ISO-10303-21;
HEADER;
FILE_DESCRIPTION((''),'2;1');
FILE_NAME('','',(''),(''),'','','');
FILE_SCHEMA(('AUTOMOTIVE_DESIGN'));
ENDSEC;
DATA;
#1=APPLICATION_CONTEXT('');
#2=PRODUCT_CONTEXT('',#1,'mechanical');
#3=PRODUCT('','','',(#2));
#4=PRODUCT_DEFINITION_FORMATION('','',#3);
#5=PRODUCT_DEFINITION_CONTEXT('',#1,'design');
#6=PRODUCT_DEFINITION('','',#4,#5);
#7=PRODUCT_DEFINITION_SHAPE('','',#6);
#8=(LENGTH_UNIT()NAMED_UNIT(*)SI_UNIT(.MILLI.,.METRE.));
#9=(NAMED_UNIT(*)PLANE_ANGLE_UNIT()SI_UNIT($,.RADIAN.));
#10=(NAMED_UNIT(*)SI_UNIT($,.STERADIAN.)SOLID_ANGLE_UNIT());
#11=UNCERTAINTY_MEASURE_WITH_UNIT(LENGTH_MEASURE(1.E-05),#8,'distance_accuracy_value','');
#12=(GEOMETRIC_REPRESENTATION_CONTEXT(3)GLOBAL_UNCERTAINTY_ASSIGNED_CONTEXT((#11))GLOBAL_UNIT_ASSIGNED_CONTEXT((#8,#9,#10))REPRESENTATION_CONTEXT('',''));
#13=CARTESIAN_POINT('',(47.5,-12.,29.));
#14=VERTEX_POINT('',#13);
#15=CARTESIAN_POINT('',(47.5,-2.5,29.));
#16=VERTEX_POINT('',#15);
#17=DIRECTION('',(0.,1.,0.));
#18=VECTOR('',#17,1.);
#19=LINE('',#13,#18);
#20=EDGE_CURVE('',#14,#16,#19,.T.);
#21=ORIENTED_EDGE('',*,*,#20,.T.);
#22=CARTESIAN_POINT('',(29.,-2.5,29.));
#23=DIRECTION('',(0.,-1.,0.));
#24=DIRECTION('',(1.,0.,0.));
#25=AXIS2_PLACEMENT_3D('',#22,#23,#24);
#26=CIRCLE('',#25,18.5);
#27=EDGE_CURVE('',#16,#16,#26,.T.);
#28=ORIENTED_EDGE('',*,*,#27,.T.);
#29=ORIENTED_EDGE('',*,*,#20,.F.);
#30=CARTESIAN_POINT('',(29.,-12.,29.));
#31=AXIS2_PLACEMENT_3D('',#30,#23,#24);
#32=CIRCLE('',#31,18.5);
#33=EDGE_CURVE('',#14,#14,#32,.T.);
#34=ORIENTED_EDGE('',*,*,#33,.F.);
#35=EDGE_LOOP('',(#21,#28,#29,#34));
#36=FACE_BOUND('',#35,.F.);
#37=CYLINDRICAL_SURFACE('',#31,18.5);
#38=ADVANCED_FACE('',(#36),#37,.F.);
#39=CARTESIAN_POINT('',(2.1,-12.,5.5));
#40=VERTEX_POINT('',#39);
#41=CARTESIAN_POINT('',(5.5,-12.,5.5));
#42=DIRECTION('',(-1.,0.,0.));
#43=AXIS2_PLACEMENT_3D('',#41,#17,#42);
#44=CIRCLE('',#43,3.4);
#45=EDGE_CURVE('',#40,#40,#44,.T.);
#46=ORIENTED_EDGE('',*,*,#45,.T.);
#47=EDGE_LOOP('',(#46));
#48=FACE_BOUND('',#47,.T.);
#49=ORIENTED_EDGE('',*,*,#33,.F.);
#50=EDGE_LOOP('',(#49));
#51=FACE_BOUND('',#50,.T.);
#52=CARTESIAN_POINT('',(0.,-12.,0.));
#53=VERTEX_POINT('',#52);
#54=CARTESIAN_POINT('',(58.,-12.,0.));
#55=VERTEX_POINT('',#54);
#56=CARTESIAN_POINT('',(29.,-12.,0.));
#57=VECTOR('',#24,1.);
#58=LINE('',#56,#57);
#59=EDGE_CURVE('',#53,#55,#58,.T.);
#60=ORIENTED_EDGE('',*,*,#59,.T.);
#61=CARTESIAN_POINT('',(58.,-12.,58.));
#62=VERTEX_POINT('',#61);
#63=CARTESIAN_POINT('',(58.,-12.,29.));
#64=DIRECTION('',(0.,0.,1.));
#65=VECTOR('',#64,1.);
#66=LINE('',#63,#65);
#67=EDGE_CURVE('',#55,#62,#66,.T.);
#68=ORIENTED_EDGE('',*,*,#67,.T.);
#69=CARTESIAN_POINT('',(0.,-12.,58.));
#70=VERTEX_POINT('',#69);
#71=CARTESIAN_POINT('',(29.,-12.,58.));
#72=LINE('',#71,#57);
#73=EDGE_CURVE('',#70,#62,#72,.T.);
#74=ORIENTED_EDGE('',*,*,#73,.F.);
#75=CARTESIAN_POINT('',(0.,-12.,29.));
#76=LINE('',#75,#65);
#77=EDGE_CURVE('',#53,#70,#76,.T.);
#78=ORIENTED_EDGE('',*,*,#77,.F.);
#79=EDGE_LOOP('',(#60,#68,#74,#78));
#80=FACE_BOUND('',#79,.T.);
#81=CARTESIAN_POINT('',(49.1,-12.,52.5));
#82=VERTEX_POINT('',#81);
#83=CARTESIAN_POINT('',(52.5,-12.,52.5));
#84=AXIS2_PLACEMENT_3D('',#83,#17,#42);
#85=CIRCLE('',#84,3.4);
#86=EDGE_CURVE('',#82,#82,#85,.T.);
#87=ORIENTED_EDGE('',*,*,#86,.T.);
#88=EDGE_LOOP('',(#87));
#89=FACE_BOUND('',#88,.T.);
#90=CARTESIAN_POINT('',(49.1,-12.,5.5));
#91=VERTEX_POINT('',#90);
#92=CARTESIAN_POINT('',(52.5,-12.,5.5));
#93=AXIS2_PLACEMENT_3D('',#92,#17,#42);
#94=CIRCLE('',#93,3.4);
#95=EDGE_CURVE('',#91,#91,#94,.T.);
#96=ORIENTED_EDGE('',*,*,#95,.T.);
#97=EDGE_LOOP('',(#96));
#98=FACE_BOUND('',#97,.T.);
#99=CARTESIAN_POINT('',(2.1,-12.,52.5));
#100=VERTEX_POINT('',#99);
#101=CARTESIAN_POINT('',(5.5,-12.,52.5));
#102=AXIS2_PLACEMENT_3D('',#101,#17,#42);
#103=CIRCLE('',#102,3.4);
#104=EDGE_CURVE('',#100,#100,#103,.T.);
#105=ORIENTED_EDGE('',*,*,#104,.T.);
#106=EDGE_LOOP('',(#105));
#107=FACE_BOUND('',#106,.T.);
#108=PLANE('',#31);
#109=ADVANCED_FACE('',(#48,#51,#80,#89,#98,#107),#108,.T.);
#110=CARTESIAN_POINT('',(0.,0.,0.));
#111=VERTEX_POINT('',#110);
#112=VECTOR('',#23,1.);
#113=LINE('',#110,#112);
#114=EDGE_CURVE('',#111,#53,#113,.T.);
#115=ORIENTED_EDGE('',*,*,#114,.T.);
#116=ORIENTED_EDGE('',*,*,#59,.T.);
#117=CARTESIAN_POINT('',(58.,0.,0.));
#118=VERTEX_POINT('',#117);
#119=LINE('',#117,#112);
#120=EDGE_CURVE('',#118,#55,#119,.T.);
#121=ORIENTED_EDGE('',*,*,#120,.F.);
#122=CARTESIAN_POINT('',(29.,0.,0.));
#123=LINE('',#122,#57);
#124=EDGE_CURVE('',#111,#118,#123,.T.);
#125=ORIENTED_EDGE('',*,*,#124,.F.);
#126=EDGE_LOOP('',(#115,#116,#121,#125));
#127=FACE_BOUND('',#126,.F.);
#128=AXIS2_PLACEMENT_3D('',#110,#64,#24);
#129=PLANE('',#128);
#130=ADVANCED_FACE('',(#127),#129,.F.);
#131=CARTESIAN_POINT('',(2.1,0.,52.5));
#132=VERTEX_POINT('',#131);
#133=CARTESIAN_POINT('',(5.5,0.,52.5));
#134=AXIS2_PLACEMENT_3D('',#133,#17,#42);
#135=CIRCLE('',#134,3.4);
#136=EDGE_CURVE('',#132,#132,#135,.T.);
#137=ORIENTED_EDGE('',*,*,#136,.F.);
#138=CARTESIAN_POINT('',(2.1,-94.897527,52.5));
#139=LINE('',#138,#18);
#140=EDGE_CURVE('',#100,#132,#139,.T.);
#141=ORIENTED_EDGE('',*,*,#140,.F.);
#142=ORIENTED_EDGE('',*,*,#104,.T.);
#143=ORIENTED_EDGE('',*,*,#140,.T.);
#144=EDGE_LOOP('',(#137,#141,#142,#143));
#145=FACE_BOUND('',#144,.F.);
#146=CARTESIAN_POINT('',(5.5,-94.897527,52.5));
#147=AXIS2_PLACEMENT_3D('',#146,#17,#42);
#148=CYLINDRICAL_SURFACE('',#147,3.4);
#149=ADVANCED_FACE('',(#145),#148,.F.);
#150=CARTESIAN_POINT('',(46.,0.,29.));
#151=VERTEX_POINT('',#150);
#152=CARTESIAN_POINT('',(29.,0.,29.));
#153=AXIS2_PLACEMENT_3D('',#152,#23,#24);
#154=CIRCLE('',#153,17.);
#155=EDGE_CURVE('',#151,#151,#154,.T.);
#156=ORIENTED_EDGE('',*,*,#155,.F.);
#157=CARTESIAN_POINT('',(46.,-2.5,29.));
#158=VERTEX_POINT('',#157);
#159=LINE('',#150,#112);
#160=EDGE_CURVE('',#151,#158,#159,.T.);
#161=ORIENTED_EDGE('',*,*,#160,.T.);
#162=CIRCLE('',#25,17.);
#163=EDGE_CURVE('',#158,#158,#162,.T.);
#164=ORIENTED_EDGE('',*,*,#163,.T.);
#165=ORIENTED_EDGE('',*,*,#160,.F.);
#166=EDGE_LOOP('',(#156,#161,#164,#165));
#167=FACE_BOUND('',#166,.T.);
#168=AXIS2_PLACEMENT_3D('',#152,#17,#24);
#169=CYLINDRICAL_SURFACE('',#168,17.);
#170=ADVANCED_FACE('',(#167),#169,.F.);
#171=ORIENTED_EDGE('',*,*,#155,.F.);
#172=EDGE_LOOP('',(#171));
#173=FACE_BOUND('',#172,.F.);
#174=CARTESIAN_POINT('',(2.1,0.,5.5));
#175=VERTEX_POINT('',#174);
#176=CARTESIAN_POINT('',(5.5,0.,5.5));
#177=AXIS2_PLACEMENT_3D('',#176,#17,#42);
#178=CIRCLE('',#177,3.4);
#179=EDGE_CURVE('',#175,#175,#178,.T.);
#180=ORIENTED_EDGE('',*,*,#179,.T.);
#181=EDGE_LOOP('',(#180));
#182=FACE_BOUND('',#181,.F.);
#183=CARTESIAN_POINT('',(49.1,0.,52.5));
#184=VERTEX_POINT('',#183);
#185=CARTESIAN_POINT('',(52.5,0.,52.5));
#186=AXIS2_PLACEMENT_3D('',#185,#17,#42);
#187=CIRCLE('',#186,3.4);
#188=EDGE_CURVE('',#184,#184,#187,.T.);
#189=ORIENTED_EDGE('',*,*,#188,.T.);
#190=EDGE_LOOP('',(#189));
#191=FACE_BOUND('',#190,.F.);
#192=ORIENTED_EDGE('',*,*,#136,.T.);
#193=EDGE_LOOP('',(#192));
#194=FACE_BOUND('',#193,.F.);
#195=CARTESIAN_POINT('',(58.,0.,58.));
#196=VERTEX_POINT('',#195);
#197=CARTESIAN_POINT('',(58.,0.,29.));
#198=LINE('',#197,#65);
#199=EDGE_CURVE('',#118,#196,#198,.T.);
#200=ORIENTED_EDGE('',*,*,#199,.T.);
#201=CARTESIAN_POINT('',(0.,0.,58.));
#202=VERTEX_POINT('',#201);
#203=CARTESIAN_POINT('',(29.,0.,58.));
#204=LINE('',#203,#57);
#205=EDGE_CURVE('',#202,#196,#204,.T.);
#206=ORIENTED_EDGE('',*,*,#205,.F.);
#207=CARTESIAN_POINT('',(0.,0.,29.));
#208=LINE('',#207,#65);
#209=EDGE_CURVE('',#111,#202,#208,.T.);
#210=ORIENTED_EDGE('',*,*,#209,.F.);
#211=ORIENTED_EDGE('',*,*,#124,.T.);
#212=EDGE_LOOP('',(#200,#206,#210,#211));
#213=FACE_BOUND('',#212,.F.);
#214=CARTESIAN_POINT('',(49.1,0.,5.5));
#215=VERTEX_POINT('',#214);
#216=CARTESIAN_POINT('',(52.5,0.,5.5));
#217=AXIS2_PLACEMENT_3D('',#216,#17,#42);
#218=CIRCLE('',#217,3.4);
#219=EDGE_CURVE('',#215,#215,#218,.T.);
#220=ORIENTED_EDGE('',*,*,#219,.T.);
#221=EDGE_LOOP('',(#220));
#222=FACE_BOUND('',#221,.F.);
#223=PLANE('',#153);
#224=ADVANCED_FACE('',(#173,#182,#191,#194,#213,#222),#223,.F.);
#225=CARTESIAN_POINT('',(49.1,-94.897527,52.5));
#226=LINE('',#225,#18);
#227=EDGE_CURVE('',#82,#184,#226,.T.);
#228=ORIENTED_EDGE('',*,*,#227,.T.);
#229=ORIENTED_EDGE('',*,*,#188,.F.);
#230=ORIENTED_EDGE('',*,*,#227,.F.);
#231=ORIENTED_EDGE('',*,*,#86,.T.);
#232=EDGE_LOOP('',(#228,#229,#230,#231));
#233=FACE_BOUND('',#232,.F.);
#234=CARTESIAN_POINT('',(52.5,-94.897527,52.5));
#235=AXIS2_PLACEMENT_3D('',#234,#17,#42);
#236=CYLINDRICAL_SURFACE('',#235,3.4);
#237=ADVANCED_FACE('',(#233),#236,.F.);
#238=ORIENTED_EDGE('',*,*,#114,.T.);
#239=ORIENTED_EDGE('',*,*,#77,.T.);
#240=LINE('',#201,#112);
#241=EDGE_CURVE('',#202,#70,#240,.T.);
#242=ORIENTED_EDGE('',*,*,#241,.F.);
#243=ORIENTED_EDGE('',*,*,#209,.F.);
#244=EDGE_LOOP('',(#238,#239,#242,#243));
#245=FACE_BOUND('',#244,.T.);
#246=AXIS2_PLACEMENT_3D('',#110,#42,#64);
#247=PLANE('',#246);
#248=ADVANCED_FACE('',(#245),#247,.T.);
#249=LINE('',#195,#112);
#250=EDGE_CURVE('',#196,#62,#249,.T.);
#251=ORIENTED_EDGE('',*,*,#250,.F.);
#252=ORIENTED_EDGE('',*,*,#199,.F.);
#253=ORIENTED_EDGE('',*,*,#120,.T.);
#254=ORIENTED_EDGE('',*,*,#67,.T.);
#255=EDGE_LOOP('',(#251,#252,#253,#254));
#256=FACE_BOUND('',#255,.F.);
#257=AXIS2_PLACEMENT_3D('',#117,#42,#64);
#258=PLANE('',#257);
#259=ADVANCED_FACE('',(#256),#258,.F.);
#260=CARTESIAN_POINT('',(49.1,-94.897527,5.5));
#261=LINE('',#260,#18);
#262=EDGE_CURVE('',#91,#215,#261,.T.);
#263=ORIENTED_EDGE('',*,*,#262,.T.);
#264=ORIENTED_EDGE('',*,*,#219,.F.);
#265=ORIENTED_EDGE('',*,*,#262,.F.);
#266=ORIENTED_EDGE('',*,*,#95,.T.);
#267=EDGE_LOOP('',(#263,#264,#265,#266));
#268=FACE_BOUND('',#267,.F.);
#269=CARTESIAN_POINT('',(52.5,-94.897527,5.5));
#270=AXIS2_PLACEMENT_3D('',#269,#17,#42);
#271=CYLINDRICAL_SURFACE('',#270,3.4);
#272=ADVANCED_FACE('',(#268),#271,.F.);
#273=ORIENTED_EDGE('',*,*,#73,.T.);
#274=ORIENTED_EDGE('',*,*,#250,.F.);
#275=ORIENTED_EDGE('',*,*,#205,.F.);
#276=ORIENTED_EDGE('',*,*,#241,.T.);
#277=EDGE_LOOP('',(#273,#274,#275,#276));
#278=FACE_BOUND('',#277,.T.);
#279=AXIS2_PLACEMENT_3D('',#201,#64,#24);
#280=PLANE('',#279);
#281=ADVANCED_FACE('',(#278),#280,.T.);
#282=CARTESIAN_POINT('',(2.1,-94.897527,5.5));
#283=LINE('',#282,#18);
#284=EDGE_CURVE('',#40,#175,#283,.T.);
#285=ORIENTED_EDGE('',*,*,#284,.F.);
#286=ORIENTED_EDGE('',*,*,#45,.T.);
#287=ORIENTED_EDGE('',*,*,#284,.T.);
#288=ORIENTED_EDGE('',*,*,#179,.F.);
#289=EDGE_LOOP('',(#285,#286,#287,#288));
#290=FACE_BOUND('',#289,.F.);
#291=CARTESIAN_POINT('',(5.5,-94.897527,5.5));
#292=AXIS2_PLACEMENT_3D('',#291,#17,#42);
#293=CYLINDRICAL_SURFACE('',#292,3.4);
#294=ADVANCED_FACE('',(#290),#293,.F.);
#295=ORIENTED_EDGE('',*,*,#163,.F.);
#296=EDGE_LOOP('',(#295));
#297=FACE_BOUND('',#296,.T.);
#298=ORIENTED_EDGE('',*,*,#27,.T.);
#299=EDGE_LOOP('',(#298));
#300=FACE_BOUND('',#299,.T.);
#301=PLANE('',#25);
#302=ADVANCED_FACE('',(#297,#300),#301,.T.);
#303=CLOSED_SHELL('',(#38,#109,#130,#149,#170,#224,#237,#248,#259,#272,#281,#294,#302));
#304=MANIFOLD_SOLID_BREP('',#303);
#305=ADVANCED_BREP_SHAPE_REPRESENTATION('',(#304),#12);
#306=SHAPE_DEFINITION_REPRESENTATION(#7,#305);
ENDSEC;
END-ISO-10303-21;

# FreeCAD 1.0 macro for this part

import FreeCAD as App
import Part
import Sketcher

V = App.Vector
Q = App.Units.Quantity


def add_polygon(sketch, points):
    """Adds a closed chain of lines whose ends are joined by coincident constraints."""
    first, n = sketch.GeometryCount, len(points)
    for a, b in zip(points, points[1:] + points[:1]):
        sketch.addGeometry(Part.LineSegment(App.Vector(*a, 0), App.Vector(*b, 0)), False)
    for i in range(n):
        sketch.addConstraint(Sketcher.Constraint("Coincident", first + i, 2, first + (i + 1) % n, 1))

doc = App.newDocument("Part")
body = doc.addObject("PartDesign::Body", "Body")

sketch1 = body.newObject("Sketcher::SketchObject", "Sketch")
sketch1.AttachmentSupport = (doc.getObject("XZ_Plane"), [""])
sketch1.MapMode = "FlatFace"
add_polygon(sketch1, [(0, 58), (0, 0), (58, 0), (58, 58)])
sketch1.addGeometry(Part.Circle(V(29, 29, 0), V(0, 0, 1), 17), False)
sketch1.addConstraint(Sketcher.Constraint("Vertical", 0))
sketch1.addConstraint(Sketcher.Constraint("Horizontal", 1))
sketch1.addConstraint(Sketcher.Constraint("Vertical", 2))
sketch1.addConstraint(Sketcher.Constraint("Horizontal", 3))
sketch1.addConstraint(Sketcher.Constraint("Coincident", 0, 2, -1, 1))
sketch1.addConstraint(Sketcher.Constraint("Equal", 3, 0))
sketch1.addConstraint(Sketcher.Constraint("Diameter", 4, Q("34 mm")))
sketch1.addConstraint(Sketcher.Constraint("DistanceX", 1, 1, 1, 2, Q("58 mm")))
sketch1.addConstraint(Sketcher.Constraint("DistanceX", -1, 1, 4, 3, Q("29 mm")))
sketch1.addConstraint(Sketcher.Constraint("DistanceY", -1, 1, 4, 3, Q("29 mm")))
pad1 = body.newObject("PartDesign::Pad", "Pad")
pad1.Profile = sketch1
pad1.Length = 12

sketch2 = body.newObject("Sketcher::SketchObject", "Sketch001")
sketch2.AttachmentSupport = (doc.getObject("XZ_Plane"), [""])
sketch2.MapMode = "FlatFace"
sketch2.AttachmentOffset = App.Placement(V(0, 0, 12), App.Rotation())
sketch2.addGeometry(Part.Circle(V(29, 29, 0), V(0, 0, 1), 18), False)
sketch2.addGeometry(Part.Circle(V(29, 29, 0), V(0, 0, 1), 17), False)
sketch2.addConstraint(Sketcher.Constraint("Coincident", 1, 3, 0, 3))
sketch2.addConstraint(Sketcher.Constraint("Diameter", 0, Q("37 mm")))
sketch2.addConstraint(Sketcher.Constraint("Diameter", 1, Q("34 mm")))
sketch2.addConstraint(Sketcher.Constraint("DistanceX", -1, 1, 0, 3, Q("29 mm")))
sketch2.addConstraint(Sketcher.Constraint("DistanceY", -1, 1, 0, 3, Q("29 mm")))
pocket1 = body.newObject("PartDesign::Pocket", "Pocket")
pocket1.Profile = sketch2
pocket1.Length = 9.5

sketch3 = body.newObject("Sketcher::SketchObject", "Sketch002")
sketch3.AttachmentSupport = (doc.getObject("XZ_Plane"), [""])
sketch3.MapMode = "FlatFace"
sketch3.AttachmentOffset = App.Placement(V(0, 0, 12), App.Rotation())
sketch3.addGeometry(Part.Circle(V(5.5, 52.5, 0), V(0, 0, 1), 3.4), False)
sketch3.addGeometry(Part.Circle(V(52.5, 52.5, 0), V(0, 0, 1), 3.4), False)
sketch3.addGeometry(Part.Circle(V(52.5, 5.5, 0), V(0, 0, 1), 3.4), False)
sketch3.addGeometry(Part.Circle(V(5.5, 5.5, 0), V(0, 0, 1), 3.4), False)
sketch3.addConstraint(Sketcher.Constraint("Equal", 0, 1))
sketch3.addConstraint(Sketcher.Constraint("Equal", 1, 2))
sketch3.addConstraint(Sketcher.Constraint("Equal", 2, 3))
sketch3.addConstraint(Sketcher.Constraint("Horizontal", 0, 3, 1, 3))
sketch3.addConstraint(Sketcher.Constraint("Horizontal", 2, 3, 3, 3))
sketch3.addConstraint(Sketcher.Constraint("Vertical", 1, 3, 2, 3))
sketch3.addConstraint(Sketcher.Constraint("Vertical", 0, 3, 3, 3))
sketch3.addConstraint(Sketcher.Constraint("Diameter", 0, Q("6.8 mm")))
sketch3.addConstraint(Sketcher.Constraint("DistanceX", 0, 3, 1, 3, Q("47 mm")))
sketch3.addConstraint(Sketcher.Constraint("DistanceY", 2, 3, 1, 3, Q("47 mm")))
sketch3.addConstraint(Sketcher.Constraint("DistanceX", -1, 1, 0, 3, Q("5.5 mm")))
sketch3.addConstraint(Sketcher.Constraint("DistanceY", -1, 1, 0, 3, Q("52.5 mm")))
doc.recompute()
hole = body.newObject("PartDesign::Hole", "Hole")
hole.Profile = sketch3
hole.ThreadType = "None"
hole.Diameter = 6.8
hole.DepthType = "ThroughAll"

doc.recompute()
